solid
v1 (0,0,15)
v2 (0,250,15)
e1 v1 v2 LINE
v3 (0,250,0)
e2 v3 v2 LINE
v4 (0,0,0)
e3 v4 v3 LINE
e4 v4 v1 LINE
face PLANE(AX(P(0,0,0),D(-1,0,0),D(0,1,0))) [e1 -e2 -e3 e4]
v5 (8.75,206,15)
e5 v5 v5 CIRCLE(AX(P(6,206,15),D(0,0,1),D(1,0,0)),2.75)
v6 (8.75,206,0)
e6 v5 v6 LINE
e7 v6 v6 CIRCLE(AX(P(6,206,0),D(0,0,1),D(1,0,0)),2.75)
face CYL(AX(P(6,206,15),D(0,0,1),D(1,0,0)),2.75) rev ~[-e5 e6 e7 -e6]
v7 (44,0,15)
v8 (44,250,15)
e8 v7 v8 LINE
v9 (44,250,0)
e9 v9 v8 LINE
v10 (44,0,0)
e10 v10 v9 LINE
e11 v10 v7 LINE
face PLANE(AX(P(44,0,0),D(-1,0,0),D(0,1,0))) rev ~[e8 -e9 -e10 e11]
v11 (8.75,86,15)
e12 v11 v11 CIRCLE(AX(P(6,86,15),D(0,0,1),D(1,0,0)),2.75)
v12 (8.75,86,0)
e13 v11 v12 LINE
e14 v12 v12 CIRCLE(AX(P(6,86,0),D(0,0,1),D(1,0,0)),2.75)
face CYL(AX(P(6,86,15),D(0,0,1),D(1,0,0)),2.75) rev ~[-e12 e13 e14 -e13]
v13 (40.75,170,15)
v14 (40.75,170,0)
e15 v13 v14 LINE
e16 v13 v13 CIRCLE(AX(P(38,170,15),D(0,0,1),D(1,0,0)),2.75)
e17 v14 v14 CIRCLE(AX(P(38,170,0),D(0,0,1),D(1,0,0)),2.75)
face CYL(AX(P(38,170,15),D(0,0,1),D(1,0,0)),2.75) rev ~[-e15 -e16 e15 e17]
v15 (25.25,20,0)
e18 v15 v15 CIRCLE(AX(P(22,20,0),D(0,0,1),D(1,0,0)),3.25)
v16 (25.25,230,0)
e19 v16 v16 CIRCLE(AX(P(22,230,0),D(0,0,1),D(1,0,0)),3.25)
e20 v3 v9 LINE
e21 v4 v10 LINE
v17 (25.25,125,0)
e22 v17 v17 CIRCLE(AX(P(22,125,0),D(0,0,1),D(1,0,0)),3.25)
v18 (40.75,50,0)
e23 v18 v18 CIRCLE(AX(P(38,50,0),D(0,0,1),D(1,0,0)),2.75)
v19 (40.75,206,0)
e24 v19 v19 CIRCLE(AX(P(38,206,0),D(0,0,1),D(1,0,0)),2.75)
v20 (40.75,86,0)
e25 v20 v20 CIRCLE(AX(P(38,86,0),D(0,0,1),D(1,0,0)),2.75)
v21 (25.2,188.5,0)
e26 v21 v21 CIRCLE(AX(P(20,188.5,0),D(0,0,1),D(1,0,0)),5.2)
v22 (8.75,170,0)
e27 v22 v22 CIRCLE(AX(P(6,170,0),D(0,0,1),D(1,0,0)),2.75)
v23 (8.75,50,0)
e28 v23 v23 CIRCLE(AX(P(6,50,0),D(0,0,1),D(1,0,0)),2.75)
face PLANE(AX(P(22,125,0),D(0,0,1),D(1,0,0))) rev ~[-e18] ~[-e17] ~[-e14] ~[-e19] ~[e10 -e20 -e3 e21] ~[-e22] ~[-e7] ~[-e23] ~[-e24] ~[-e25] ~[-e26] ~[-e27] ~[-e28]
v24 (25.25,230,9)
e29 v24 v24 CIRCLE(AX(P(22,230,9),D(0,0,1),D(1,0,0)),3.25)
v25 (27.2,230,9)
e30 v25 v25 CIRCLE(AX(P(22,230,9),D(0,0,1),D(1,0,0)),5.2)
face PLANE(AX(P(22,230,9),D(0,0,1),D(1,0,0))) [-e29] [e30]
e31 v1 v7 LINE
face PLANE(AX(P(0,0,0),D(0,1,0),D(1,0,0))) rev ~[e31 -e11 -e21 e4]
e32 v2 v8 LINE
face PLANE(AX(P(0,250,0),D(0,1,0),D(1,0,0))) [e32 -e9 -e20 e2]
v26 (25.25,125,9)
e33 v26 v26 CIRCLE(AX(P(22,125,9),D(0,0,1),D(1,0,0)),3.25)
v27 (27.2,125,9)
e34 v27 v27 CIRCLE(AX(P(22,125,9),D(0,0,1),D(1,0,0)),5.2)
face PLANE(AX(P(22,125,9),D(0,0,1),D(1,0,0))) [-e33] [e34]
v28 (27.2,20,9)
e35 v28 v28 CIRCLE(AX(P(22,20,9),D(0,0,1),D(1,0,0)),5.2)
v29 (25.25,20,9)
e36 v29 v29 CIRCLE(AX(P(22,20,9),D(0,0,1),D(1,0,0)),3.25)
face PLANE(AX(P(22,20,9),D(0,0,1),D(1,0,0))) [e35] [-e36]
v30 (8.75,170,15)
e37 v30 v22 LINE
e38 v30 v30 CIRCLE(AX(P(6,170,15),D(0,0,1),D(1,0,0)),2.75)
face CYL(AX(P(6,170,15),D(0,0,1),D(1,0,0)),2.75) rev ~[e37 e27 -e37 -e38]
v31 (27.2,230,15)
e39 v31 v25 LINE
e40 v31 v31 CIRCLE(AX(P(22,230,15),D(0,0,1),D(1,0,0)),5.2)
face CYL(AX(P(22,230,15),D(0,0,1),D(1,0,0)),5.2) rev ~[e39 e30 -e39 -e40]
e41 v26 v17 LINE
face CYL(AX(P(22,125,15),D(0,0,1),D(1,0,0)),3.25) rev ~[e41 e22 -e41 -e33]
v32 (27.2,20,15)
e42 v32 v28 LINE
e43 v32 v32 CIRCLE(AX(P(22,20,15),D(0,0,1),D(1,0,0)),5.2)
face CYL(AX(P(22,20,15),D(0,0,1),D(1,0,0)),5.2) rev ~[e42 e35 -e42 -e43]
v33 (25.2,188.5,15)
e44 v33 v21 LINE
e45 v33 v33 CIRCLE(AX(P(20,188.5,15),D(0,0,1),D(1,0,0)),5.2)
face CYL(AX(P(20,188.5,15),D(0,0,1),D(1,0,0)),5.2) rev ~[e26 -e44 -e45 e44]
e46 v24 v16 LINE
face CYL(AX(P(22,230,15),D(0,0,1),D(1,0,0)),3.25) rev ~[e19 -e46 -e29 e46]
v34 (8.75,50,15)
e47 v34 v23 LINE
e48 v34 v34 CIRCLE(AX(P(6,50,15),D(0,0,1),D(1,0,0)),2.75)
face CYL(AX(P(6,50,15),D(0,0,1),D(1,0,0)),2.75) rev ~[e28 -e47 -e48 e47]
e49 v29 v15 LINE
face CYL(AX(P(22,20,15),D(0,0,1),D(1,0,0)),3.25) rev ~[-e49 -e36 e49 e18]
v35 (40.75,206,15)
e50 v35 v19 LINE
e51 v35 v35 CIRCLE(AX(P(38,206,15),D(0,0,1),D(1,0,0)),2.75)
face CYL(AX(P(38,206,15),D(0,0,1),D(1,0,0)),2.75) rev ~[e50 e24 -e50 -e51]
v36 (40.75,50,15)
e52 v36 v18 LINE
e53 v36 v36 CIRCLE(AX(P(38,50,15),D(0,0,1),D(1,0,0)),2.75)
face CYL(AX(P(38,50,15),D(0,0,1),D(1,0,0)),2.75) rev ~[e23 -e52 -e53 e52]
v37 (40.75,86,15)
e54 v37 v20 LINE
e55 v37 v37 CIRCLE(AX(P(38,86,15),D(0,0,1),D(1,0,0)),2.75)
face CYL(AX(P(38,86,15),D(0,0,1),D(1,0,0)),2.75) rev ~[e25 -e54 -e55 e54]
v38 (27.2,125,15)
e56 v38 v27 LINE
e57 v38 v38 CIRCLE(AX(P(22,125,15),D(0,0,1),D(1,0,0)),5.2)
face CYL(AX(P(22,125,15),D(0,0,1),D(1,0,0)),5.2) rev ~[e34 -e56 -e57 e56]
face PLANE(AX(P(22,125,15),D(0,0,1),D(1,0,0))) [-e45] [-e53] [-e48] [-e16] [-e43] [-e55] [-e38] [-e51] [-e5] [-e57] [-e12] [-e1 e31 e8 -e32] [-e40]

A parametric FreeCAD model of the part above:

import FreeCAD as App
import Part
import Sketcher
from FreeCAD import Vector


def add_polygon(sketch, points):
    """Adds a closed chain of lines whose ends are joined by coincident constraints."""
    first, n = sketch.GeometryCount, len(points)
    for a, b in zip(points, points[1:] + points[:1]):
        sketch.addGeometry(Part.LineSegment(App.Vector(*a, 0), App.Vector(*b, 0)), False)
    for i in range(n):
        sketch.addConstraint(Sketcher.Constraint("Coincident", first + i, 2, first + (i + 1) % n, 1))

doc = App.newDocument("Part")
body = doc.addObject("PartDesign::Body", "Body")

# Sketch on XY plane
sketch1 = body.newObject("Sketcher::SketchObject", "Sketch")
sketch1.AttachmentSupport = (doc.getObject("XY_Plane"), [""])
sketch1.MapMode = "FlatFace"
add_polygon(sketch1, [(0, 250), (0, 0), (44, 0), (44, 250)])  # lines 0-3
sketch1.addConstraint(Sketcher.Constraint("Vertical", 0))
sketch1.addConstraint(Sketcher.Constraint("Horizontal", 1))
sketch1.addConstraint(Sketcher.Constraint("Vertical", 2))
sketch1.addConstraint(Sketcher.Constraint("Horizontal", 3))
sketch1.addConstraint(Sketcher.Constraint("Coincident", 0, 2, -1, 1))
sketch1.addConstraint(Sketcher.Constraint("DistanceX", 1, 1, 1, 2, 44.0))
sketch1.addConstraint(Sketcher.Constraint("DistanceY", 0, 2, 0, 1, 250.0))
pad1 = body.newObject("PartDesign::Pad", "Pad")
pad1.Profile = sketch1
pad1.Length = 15

# Sketch on XY plane
sketch2 = body.newObject("Sketcher::SketchObject", "Sketch001")
sketch2.AttachmentSupport = (doc.getObject("XY_Plane"), [""])
sketch2.MapMode = "FlatFace"
sketch2.AttachmentOffset = App.Placement(Vector(0, 0, 15), App.Rotation())
sketch2.addGeometry(Part.Circle(Vector(22, 230, 0), Vector(0, 0, 1), 3.2), False)
sketch2.addGeometry(Part.Circle(Vector(22, 125, 0), Vector(0, 0, 1), 3.2), False)
sketch2.addGeometry(Part.Circle(Vector(22, 20, 0), Vector(0, 0, 1), 3.2), False)
sketch2.addConstraint(Sketcher.Constraint("Equal", 0, 1))
sketch2.addConstraint(Sketcher.Constraint("Equal", 1, 2))
sketch2.addConstraint(Sketcher.Constraint("Vertical", 0, 3, 1, 3))
sketch2.addConstraint(Sketcher.Constraint("Vertical", 1, 3, 2, 3))
sketch2.addConstraint(Sketcher.Constraint("Diameter", 0, 6.5))
sketch2.addConstraint(Sketcher.Constraint("DistanceX", -1, 1, 0, 3, 22.0))
sketch2.addConstraint(Sketcher.Constraint("DistanceY", -1, 1, 0, 3, 230.0))
sketch2.addConstraint(Sketcher.Constraint("DistanceY", -1, 1, 1, 3, 125.0))
sketch2.addConstraint(Sketcher.Constraint("DistanceY", -1, 1, 2, 3, 20.0))
pocket1 = body.newObject("PartDesign::Pocket", "Pocket")
pocket1.Profile = sketch2
pocket1.Length = 15

# Sketch on XY plane
sketch3 = body.newObject("Sketcher::SketchObject", "Sketch002")
sketch3.AttachmentSupport = (doc.getObject("XY_Plane"), [""])
sketch3.MapMode = "FlatFace"
sketch3.AttachmentOffset = App.Placement(Vector(0, 0, 15), App.Rotation())
sketch3.addGeometry(Part.Circle(Vector(6, 206, 0), Vector(0, 0, 1), 2.8), False)
sketch3.addGeometry(Part.Circle(Vector(38, 206, 0), Vector(0, 0, 1), 2.8), False)
sketch3.addGeometry(Part.Circle(Vector(6, 170, 0), Vector(0, 0, 1), 2.8), False)
sketch3.addGeometry(Part.Circle(Vector(38, 170, 0), Vector(0, 0, 1), 2.8), False)
sketch3.addGeometry(Part.Circle(Vector(6, 86, 0), Vector(0, 0, 1), 2.8), False)
sketch3.addGeometry(Part.Circle(Vector(38, 86, 0), Vector(0, 0, 1), 2.8), False)
sketch3.addGeometry(Part.Circle(Vector(6, 50, 0), Vector(0, 0, 1), 2.8), False)
sketch3.addGeometry(Part.Circle(Vector(38, 50, 0), Vector(0, 0, 1), 2.8), False)
sketch3.addConstraint(Sketcher.Constraint("Equal", 0, 1))
sketch3.addConstraint(Sketcher.Constraint("Equal", 1, 2))
sketch3.addConstraint(Sketcher.Constraint("Equal", 2, 3))
sketch3.addConstraint(Sketcher.Constraint("Equal", 3, 4))
sketch3.addConstraint(Sketcher.Constraint("Equal", 4, 5))
sketch3.addConstraint(Sketcher.Constraint("Equal", 5, 6))
sketch3.addConstraint(Sketcher.Constraint("Equal", 6, 7))
sketch3.addConstraint(Sketcher.Constraint("Horizontal", 0, 3, 1, 3))
sketch3.addConstraint(Sketcher.Constraint("Horizontal", 2, 3, 3, 3))
sketch3.addConstraint(Sketcher.Constraint("Horizontal", 4, 3, 5, 3))
sketch3.addConstraint(Sketcher.Constraint("Horizontal", 6, 3, 7, 3))
sketch3.addConstraint(Sketcher.Constraint("Vertical", 0, 3, 2, 3))
sketch3.addConstraint(Sketcher.Constraint("Vertical", 1, 3, 3, 3))
sketch3.addConstraint(Sketcher.Constraint("Vertical", 2, 3, 4, 3))
sketch3.addConstraint(Sketcher.Constraint("Vertical", 3, 3, 5, 3))
sketch3.addConstraint(Sketcher.Constraint("Vertical", 4, 3, 6, 3))
sketch3.addConstraint(Sketcher.Constraint("Vertical", 5, 3, 7, 3))
sketch3.addConstraint(Sketcher.Constraint("Diameter", 0, 5.5))
sketch3.addConstraint(Sketcher.Constraint("DistanceX", -1, 1, 0, 3, 6.0))
sketch3.addConstraint(Sketcher.Constraint("DistanceY", -1, 1, 0, 3, 206.0))
sketch3.addConstraint(Sketcher.Constraint("DistanceX", -1, 1, 1, 3, 38.0))
sketch3.addConstraint(Sketcher.Constraint("DistanceY", -1, 1, 2, 3, 170.0))
sketch3.addConstraint(Sketcher.Constraint("DistanceY", -1, 1, 4, 3, 86.0))
sketch3.addConstraint(Sketcher.Constraint("DistanceY", -1, 1, 6, 3, 50.0))
pocket2 = body.newObject("PartDesign::Pocket", "Pocket001")
pocket2.Profile = sketch3
pocket2.Length = 15

# Sketch on XY plane
sketch4 = body.newObject("Sketcher::SketchObject", "Sketch003")
sketch4.AttachmentSupport = (doc.getObject("XY_Plane"), [""])
sketch4.MapMode = "FlatFace"
sketch4.AttachmentOffset = App.Placement(Vector(0, 0, 15), App.Rotation())
sketch4.addGeometry(Part.Circle(Vector(22, 20, 0), Vector(0, 0, 1), 5), False)
sketch4.addGeometry(Part.Circle(Vector(22, 125, 0), Vector(0, 0, 1), 5), False)
sketch4.addGeometry(Part.Circle(Vector(22, 230, 0), Vector(0, 0, 1), 5), False)
sketch4.addConstraint(Sketcher.Constraint("Equal", 0, 1))
sketch4.addConstraint(Sketcher.Constraint("Equal", 1, 2))
sketch4.addConstraint(Sketcher.Constraint("Vertical", 0, 3, 1, 3))
sketch4.addConstraint(Sketcher.Constraint("Vertical", 1, 3, 2, 3))
sketch4.addConstraint(Sketcher.Constraint("Diameter", 0, 10.4))
sketch4.addConstraint(Sketcher.Constraint("DistanceX", -1, 1, 0, 3, 22.0))
sketch4.addConstraint(Sketcher.Constraint("DistanceY", -1, 1, 0, 3, 20.0))
sketch4.addConstraint(Sketcher.Constraint("DistanceY", -1, 1, 1, 3, 125.0))
sketch4.addConstraint(Sketcher.Constraint("DistanceY", -1, 1, 2, 3, 230.0))
pocket3 = body.newObject("PartDesign::Pocket", "Pocket002")
pocket3.Profile = sketch4
pocket3.Length = 6

# Sketch on XY plane
sketch5 = body.newObject("Sketcher::SketchObject", "Sketch004")
sketch5.AttachmentSupport = (doc.getObject("XY_Plane"), [""])
sketch5.MapMode = "FlatFace"
sketch5.AttachmentOffset = App.Placement(Vector(0, 0, 15), App.Rotation())
sketch5.addGeometry(Part.Circle(Vector(20, 188, 0), Vector(0, 0, 1), 5), False)
sketch5.addConstraint(Sketcher.Constraint("Diameter", 0, 10.4))
sketch5.addConstraint(Sketcher.Constraint("DistanceX", -1, 1, 0, 3, 20.0))
sketch5.addConstraint(Sketcher.Constraint("DistanceY", -1, 1, 0, 3, 188.5))
pocket4 = body.newObject("PartDesign::Pocket", "Pocket003")
pocket4.Profile = sketch5
pocket4.Length = 15

doc.recompute()
